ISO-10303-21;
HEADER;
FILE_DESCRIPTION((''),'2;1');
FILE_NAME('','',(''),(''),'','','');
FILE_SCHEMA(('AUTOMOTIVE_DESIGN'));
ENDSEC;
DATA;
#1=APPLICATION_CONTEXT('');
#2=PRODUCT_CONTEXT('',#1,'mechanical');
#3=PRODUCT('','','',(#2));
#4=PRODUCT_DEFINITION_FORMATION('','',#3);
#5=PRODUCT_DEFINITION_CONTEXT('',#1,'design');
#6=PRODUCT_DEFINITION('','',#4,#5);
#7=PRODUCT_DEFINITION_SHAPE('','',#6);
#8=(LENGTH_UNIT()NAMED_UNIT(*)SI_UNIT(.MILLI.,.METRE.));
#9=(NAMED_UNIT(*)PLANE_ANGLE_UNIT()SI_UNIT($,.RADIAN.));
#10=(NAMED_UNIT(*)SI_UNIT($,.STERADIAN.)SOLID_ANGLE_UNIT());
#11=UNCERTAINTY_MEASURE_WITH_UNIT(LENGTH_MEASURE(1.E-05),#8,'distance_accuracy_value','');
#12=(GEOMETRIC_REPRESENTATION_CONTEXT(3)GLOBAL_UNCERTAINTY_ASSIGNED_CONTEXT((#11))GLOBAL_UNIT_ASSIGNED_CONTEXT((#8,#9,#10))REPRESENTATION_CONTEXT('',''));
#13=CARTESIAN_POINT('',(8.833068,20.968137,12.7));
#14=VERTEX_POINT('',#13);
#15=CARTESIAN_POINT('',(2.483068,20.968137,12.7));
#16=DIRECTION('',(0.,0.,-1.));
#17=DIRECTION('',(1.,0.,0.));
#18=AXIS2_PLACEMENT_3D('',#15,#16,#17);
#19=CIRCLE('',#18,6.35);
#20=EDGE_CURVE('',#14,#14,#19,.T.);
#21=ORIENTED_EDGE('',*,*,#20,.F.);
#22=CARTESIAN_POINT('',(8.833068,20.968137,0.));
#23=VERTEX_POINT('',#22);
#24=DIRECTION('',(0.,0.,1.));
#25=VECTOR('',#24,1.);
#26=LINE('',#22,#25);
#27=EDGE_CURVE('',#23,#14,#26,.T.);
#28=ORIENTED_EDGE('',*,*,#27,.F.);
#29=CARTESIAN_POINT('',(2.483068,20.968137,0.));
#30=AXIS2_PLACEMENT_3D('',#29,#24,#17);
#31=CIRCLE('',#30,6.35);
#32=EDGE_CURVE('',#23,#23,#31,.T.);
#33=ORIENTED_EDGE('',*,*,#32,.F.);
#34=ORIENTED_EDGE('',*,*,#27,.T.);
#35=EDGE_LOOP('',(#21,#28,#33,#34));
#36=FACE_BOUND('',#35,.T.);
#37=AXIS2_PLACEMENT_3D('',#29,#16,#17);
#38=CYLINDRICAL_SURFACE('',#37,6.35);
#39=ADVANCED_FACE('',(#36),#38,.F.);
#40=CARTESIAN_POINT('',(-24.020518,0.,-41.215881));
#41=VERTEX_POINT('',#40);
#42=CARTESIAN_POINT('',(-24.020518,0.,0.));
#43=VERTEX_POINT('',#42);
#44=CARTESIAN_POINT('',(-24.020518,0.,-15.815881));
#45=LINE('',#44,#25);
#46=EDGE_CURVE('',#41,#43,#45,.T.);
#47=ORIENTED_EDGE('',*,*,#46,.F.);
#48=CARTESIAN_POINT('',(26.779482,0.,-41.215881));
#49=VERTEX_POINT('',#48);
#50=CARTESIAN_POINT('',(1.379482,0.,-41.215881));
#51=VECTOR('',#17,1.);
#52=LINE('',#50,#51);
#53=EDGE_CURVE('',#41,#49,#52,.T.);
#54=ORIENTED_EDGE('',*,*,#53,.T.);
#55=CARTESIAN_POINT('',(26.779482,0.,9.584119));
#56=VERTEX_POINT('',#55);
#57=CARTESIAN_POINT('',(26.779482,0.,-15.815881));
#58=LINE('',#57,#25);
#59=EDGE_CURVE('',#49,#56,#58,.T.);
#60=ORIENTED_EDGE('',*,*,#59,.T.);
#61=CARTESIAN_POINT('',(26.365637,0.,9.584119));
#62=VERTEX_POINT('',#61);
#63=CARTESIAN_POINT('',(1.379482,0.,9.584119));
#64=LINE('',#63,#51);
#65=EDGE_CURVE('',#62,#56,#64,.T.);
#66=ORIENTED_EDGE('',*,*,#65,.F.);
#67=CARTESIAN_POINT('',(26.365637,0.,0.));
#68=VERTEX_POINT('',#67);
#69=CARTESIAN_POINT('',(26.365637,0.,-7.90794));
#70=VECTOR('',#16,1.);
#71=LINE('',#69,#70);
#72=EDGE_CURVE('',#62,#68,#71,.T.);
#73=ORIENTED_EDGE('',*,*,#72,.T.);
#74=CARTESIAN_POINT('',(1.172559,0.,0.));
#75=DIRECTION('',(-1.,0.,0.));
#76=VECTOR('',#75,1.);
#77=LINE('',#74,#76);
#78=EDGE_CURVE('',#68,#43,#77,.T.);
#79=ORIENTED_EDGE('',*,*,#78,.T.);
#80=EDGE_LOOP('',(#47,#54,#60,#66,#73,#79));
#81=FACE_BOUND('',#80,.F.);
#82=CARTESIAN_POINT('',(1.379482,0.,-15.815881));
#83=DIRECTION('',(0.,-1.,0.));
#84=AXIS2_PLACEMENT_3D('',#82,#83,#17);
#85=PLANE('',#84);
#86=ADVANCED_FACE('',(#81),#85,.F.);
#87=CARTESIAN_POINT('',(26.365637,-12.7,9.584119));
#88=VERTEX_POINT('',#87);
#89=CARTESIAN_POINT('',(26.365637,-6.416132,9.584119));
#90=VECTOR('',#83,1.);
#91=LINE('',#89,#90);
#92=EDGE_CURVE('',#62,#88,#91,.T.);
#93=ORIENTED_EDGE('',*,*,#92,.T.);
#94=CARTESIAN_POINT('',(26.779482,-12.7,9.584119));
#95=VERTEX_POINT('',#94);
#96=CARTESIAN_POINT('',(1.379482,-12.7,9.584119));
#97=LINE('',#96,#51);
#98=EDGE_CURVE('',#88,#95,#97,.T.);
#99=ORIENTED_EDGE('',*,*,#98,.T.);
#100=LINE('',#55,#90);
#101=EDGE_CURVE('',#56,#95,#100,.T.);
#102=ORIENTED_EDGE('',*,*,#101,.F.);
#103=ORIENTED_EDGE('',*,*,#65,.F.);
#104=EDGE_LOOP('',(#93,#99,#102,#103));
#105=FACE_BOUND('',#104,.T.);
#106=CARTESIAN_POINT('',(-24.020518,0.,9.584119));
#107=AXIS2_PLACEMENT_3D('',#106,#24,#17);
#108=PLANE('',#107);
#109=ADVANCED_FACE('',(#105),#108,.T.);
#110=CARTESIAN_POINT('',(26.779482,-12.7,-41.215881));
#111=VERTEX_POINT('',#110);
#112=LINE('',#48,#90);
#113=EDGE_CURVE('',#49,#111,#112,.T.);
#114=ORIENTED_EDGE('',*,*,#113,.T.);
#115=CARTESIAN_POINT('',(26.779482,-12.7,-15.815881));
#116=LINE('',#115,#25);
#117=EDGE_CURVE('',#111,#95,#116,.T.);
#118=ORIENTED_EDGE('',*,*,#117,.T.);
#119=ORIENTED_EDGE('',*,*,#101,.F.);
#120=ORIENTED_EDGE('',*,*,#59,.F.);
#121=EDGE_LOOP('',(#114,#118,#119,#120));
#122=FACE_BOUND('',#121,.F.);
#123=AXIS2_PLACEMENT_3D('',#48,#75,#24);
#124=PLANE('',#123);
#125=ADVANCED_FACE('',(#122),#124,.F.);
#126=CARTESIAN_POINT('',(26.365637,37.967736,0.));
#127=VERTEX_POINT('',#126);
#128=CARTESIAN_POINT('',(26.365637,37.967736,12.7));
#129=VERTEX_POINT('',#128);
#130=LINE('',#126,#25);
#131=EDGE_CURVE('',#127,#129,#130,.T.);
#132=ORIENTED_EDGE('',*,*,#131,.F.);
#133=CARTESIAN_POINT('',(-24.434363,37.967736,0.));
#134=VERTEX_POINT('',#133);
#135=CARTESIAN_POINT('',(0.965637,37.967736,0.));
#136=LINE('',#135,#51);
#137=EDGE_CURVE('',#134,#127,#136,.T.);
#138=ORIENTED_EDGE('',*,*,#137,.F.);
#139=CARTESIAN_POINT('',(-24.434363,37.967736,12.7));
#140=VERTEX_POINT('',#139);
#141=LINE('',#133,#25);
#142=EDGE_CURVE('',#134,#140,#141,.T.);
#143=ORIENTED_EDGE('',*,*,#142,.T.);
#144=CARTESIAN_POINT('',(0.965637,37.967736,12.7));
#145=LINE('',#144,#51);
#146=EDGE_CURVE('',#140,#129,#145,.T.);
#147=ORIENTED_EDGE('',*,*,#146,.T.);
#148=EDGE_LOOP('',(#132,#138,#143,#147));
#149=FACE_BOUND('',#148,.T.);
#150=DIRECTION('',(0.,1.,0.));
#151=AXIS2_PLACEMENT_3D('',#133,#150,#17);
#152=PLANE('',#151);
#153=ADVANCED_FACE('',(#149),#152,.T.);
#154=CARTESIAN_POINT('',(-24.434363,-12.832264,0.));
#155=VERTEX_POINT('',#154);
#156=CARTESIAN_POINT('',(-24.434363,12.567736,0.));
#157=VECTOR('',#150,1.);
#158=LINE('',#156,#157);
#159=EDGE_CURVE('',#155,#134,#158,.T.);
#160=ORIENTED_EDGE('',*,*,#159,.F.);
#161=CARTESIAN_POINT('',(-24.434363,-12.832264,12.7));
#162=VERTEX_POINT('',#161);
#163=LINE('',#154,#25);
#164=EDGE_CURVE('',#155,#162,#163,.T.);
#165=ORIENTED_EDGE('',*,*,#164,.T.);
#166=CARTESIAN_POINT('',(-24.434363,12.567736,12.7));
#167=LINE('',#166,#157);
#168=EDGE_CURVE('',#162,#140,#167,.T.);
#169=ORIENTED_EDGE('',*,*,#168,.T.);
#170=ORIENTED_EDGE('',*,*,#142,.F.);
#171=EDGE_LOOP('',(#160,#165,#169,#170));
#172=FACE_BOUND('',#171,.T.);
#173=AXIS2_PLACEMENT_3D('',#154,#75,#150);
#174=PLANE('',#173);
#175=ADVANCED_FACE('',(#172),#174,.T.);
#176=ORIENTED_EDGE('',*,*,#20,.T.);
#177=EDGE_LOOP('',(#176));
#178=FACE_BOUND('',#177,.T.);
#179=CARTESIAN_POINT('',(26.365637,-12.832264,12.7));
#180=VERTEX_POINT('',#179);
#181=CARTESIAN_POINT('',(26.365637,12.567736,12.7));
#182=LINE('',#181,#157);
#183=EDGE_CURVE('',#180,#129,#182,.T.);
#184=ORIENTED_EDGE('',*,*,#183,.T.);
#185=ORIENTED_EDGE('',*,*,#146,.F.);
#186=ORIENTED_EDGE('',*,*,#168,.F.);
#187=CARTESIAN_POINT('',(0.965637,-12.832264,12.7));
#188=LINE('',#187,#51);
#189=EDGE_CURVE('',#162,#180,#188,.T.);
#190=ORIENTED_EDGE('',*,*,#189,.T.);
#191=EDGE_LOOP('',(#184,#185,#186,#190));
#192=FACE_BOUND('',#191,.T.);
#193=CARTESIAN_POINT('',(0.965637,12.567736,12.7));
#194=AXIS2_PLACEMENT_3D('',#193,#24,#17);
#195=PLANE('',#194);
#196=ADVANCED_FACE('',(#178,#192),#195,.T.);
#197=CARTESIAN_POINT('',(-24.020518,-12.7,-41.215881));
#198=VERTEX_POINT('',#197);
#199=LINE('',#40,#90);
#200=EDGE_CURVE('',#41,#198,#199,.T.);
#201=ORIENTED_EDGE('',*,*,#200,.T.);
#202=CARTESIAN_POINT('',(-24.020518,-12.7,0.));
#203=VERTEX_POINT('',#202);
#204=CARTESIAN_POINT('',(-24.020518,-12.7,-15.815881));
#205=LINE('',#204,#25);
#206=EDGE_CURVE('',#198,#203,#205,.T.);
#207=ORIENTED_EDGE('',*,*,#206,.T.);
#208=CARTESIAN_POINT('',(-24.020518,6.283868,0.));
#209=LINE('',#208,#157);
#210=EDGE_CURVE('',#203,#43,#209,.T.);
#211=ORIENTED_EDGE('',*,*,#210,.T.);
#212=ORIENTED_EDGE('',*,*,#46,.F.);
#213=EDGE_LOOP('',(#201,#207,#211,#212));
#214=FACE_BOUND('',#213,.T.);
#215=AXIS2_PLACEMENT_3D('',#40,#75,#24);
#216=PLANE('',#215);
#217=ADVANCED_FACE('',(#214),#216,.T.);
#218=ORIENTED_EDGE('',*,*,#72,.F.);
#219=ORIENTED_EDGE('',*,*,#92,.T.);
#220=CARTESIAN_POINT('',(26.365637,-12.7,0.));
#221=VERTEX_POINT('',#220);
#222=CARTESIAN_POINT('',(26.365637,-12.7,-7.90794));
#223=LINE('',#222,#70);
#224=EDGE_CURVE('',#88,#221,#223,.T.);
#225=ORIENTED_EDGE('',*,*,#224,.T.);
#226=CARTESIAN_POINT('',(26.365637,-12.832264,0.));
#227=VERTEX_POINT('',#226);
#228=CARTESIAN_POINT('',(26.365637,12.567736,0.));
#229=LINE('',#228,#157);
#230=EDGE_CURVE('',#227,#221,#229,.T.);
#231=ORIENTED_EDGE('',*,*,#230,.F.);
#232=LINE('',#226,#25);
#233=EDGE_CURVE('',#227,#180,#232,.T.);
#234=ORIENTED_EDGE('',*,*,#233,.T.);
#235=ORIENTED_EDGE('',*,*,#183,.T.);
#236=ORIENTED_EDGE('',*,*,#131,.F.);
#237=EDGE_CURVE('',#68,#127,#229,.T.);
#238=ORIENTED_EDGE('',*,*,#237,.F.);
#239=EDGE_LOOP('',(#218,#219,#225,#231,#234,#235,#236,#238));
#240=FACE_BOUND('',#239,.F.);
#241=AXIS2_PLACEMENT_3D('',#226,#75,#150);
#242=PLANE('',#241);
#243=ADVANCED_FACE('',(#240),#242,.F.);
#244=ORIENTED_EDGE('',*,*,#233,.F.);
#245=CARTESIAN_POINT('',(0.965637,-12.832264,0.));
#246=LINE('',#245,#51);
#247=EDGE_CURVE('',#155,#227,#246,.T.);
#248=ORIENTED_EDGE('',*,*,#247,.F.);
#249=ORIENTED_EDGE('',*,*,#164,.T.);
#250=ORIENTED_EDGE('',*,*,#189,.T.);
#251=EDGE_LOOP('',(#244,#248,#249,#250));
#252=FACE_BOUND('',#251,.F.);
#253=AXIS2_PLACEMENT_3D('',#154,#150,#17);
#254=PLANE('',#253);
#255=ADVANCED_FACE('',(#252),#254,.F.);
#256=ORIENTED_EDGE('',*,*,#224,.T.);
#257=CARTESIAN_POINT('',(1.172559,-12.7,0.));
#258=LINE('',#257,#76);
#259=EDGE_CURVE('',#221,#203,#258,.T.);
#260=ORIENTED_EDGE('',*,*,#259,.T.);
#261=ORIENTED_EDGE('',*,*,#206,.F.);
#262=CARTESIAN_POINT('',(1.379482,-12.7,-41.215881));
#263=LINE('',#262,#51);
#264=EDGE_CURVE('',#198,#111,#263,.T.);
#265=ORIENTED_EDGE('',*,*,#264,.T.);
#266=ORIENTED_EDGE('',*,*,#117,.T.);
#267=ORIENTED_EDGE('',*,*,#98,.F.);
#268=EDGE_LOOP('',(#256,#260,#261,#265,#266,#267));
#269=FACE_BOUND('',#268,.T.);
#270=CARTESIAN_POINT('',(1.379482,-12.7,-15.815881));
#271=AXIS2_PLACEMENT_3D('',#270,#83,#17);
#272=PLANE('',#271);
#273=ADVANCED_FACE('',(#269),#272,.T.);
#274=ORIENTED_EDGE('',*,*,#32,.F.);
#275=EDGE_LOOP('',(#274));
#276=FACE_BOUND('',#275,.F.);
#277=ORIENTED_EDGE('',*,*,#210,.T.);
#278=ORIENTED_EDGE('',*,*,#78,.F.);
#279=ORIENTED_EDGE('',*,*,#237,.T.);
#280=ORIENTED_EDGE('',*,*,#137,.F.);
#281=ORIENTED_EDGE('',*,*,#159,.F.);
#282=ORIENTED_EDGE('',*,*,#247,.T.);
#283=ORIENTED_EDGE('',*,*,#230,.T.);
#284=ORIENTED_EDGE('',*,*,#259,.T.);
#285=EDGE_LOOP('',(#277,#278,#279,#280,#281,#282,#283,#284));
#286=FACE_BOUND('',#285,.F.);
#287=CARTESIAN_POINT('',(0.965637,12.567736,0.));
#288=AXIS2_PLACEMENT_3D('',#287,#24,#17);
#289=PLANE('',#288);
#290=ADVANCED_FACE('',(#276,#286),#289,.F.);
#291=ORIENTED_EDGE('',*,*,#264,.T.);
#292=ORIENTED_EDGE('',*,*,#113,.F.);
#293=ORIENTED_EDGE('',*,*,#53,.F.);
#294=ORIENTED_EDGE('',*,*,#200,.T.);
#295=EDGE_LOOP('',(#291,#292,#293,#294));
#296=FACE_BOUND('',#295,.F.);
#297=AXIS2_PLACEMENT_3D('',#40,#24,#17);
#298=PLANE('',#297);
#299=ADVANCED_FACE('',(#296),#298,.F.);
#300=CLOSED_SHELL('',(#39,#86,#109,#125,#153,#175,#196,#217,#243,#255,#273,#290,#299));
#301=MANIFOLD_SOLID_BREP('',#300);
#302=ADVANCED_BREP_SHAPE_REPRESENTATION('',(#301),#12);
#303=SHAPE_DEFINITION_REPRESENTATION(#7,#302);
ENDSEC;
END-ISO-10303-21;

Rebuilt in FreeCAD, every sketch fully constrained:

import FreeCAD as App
import Part
import Sketcher
Q = App.Units.Quantity

doc = App.newDocument("Part")
body = doc.addObject("PartDesign::Body", "Body")

sketch1 = doc.addObject("Sketcher::SketchObject", "Sketch")
body.addObject(sketch1)
sketch1.AttachmentSupport = (doc.XZ_Plane, [""])
sketch1.MapMode = "FlatFace"
sketch1.addGeometry(Part.LineSegment(App.Vector(-24, 10, 0), App.Vector(-24, -41, 0)), False)
sketch1.addGeometry(Part.LineSegment(App.Vector(-24, -41, 0), App.Vector(27, -41, 0)), False)
sketch1.addGeometry(Part.LineSegment(App.Vector(27, -41, 0), App.Vector(27, 10, 0)), False)
sketch1.addGeometry(Part.LineSegment(App.Vector(27, 10, 0), App.Vector(-24, 10, 0)), False)
sketch1.addConstraint(Sketcher.Constraint("Coincident", 0, 2, 1, 1))
sketch1.addConstraint(Sketcher.Constraint("Coincident", 1, 2, 2, 1))
sketch1.addConstraint(Sketcher.Constraint("Coincident", 2, 2, 3, 1))
sketch1.addConstraint(Sketcher.Constraint("Coincident", 3, 2, 0, 1))
sketch1.addConstraint(Sketcher.Constraint("Vertical", 0))
sketch1.addConstraint(Sketcher.Constraint("Horizontal", 1))
sketch1.addConstraint(Sketcher.Constraint("Vertical", 2))
sketch1.addConstraint(Sketcher.Constraint("Horizontal", 3))
sketch1.addConstraint(Sketcher.Constraint("Equal", 3, 0))
sketch1.addConstraint(Sketcher.Constraint("DistanceX", 1, 1, 1, 2, Q("2 in")))
sketch1.addConstraint(Sketcher.Constraint("DistanceY", 0, 2, -1, 1, Q("41.215881 mm")))
sketch1.addConstraint(Sketcher.Constraint("DistanceX", 0, 2, -1, 1, Q("24.020518 mm")))
pad1 = doc.addObject("PartDesign::Pad", "Pad")
body.addObject(pad1)
pad1.Profile = sketch1
pad1.Length = Q("0.5 in")

sketch2 = doc.addObject("Sketcher::SketchObject", "Sketch001")
body.addObject(sketch2)
sketch2.AttachmentSupport = (doc.XY_Plane, [""])
sketch2.MapMode = "FlatFace"
sketch2.addGeometry(Part.LineSegment(App.Vector(-24, 38, 0), App.Vector(-24, -13, 0)), False)
sketch2.addGeometry(Part.LineSegment(App.Vector(-24, -13, 0), App.Vector(26, -13, 0)), False)
sketch2.addGeometry(Part.LineSegment(App.Vector(26, -13, 0), App.Vector(26, 38, 0)), False)
sketch2.addGeometry(Part.LineSegment(App.Vector(26, 38, 0), App.Vector(-24, 38, 0)), False)
sketch2.addConstraint(Sketcher.Constraint("Coincident", 0, 2, 1, 1))
sketch2.addConstraint(Sketcher.Constraint("Coincident", 1, 2, 2, 1))
sketch2.addConstraint(Sketcher.Constraint("Coincident", 2, 2, 3, 1))
sketch2.addConstraint(Sketcher.Constraint("Coincident", 3, 2, 0, 1))
sketch2.addConstraint(Sketcher.Constraint("Vertical", 0))
sketch2.addConstraint(Sketcher.Constraint("Horizontal", 1))
sketch2.addConstraint(Sketcher.Constraint("Vertical", 2))
sketch2.addConstraint(Sketcher.Constraint("Horizontal", 3))
sketch2.addConstraint(Sketcher.Constraint("Equal", 3, 0))
sketch2.addConstraint(Sketcher.Constraint("DistanceX", 1, 1, 1, 2, Q("2 in")))
sketch2.addConstraint(Sketcher.Constraint("DistanceX", 0, 2, -1, 1, Q("24.434363 mm")))
sketch2.addConstraint(Sketcher.Constraint("DistanceY", 0, 2, -1, 1, Q("12.832264 mm")))
pad2 = doc.addObject("PartDesign::Pad", "Pad001")
body.addObject(pad2)
pad2.Profile = sketch2
pad2.Length = Q("0.5 in")

sketch3 = doc.addObject("Sketcher::SketchObject", "Sketch002")
body.addObject(sketch3)
sketch3.AttachmentSupport = (doc.XY_Plane, [""])
sketch3.MapMode = "FlatFace"
sketch3.addGeometry(Part.Circle(App.Vector(2, 21, 0), App.Vector(0, 0, 1), 6), False)
sketch3.addConstraint(Sketcher.Constraint("Diameter", 0, Q("0.5 in")))
sketch3.addConstraint(Sketcher.Constraint("DistanceX", -1, 1, 0, 3, Q("2.483068 mm")))
sketch3.addConstraint(Sketcher.Constraint("DistanceY", -1, 1, 0, 3, Q("20.968137 mm")))
pocket1 = doc.addObject("PartDesign::Pocket", "Pocket")
body.addObject(pocket1)
pocket1.Profile = sketch3
pocket1.Length = Q("1 in")
pocket1.Reversed = True

doc.recompute()
